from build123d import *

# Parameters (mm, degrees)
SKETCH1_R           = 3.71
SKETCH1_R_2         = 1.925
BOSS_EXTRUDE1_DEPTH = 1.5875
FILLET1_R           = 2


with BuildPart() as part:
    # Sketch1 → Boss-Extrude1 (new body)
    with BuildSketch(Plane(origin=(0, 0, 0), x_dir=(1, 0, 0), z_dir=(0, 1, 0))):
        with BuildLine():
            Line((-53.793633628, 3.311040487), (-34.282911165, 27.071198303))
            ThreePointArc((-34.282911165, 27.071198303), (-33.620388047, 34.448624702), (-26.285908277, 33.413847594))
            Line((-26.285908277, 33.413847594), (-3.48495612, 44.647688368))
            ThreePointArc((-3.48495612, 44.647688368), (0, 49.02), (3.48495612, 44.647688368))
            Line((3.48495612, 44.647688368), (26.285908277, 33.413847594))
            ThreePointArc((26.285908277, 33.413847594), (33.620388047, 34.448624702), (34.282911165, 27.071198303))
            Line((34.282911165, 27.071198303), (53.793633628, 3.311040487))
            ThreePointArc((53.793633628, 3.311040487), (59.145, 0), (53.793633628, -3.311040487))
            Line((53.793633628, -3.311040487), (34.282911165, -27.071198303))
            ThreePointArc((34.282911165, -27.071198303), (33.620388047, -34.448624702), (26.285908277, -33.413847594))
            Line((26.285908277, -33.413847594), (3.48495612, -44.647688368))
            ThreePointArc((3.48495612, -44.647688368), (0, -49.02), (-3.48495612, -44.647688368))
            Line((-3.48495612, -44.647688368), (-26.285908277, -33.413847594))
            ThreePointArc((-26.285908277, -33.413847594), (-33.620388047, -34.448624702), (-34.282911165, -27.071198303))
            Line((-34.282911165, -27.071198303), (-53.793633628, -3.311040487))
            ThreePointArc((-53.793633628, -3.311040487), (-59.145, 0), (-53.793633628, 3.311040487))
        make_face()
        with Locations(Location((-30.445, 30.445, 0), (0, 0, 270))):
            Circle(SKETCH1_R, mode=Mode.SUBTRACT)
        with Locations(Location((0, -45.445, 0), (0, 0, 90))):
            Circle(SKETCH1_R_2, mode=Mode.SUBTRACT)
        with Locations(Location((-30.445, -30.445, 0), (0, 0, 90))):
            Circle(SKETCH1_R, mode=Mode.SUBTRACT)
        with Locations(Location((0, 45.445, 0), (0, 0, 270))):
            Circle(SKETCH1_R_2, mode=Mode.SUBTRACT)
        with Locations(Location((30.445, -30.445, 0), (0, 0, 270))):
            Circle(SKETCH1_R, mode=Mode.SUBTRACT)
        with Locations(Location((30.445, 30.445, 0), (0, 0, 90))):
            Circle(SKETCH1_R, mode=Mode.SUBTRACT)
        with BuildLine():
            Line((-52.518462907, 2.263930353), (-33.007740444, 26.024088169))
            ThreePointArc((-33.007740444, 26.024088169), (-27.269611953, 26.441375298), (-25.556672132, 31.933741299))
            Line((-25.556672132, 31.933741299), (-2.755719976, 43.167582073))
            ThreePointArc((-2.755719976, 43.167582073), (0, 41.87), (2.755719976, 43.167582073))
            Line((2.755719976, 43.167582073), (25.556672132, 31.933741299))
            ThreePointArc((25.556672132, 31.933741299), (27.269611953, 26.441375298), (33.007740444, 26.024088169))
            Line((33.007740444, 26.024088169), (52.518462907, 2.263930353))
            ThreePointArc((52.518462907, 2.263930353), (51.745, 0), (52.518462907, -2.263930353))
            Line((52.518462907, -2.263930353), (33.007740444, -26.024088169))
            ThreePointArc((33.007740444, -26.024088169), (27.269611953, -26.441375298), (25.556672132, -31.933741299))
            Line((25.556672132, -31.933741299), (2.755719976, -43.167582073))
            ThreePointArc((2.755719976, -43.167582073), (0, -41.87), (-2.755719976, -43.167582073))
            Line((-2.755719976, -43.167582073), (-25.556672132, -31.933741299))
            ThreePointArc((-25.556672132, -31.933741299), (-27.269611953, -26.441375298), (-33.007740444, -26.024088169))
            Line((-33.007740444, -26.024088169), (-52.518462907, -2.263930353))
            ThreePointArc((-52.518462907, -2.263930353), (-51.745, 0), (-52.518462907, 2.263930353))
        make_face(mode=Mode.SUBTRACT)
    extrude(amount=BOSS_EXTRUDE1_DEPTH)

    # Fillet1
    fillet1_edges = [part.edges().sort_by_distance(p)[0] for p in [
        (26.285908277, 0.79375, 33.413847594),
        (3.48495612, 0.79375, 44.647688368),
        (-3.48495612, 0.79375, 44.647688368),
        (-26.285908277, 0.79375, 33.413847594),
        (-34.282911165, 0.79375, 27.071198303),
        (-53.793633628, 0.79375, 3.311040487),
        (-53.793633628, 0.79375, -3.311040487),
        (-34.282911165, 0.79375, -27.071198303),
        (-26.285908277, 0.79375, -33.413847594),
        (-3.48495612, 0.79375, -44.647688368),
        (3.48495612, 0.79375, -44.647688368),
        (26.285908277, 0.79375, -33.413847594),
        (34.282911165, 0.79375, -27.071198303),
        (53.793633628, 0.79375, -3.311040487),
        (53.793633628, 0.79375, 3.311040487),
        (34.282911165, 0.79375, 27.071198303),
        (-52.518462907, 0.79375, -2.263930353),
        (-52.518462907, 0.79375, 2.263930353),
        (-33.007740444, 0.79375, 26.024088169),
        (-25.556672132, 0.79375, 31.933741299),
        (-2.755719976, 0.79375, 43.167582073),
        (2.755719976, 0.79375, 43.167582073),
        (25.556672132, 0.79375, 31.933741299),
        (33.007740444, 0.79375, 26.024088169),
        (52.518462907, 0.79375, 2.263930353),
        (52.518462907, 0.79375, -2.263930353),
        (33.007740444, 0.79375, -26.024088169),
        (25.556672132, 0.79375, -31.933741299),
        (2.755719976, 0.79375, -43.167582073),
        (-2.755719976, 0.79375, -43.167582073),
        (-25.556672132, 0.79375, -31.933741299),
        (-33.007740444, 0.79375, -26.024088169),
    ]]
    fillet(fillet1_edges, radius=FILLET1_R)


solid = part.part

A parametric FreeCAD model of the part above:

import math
import FreeCAD as App
import Part
import Sketcher
from FreeCAD import Vector
Q = App.Units.Quantity


def edges_at(feature, points):
    """Names of the edges that pass closest to the given points."""
    edges = feature.Shape.Edges
    near = lambda p: min(range(len(edges)), key=lambda i: edges[i].distToShape(Part.Vertex(*p))[0])
    return sorted({f"Edge{near(p) + 1}" for p in points})

doc = App.newDocument("Part")
body = doc.addObject("PartDesign::Body", "Body")

# Sketch on XZ plane
sketch1 = body.newObject("Sketcher::SketchObject", "Sketch")
sketch1.AttachmentSupport = (doc.getObject("XZ_Plane"), [""])
sketch1.MapMode = "FlatFace"
sketch1.addGeometry([
    Part.LineSegment(Vector(-34.3, -27.1, 0), Vector(-53.8, -3.3, 0)),  # 0
    Part.ArcOfCircle(Part.Circle(Vector(-55.4, 0, 0), Vector(0, 0, 1), 3.7), math.radians(63), math.radians(297)),  # 1
    Part.LineSegment(Vector(-53.8, 3.3, 0), Vector(-34.3, 27.1, 0)),  # 2
    Part.ArcOfCircle(Part.Circle(Vector(-30.4, 30.4, 0), Vector(0, 0, 1), 5.1), math.radians(36), math.radians(221)),  # 3
    Part.LineSegment(Vector(-26.3, 33.4, 0), Vector(-3.5, 44.6, 0)),  # 4
    Part.ArcOfCircle(Part.Circle(Vector(0, 45.4, 0), Vector(0, 0, 1), 3.6), math.radians(-13), math.radians(193)),  # 5
    Part.LineSegment(Vector(3.5, 44.6, 0), Vector(26.3, 33.4, 0)),  # 6
    Part.ArcOfCircle(Part.Circle(Vector(30.4, 30.4, 0), Vector(0, 0, 1), 5.1), math.radians(-41), math.radians(144)),  # 7
    Part.LineSegment(Vector(34.3, 27.1, 0), Vector(53.8, 3.3, 0)),  # 8
    Part.ArcOfCircle(Part.Circle(Vector(55.4, 0, 0), Vector(0, 0, 1), 3.7), math.radians(-117), math.radians(117)),  # 9
    Part.LineSegment(Vector(53.8, -3.3, 0), Vector(34.3, -27.1, 0)),  # 10
    Part.ArcOfCircle(Part.Circle(Vector(30.4, -30.4, 0), Vector(0, 0, 1), 5.1), math.radians(-144), math.radians(41)),  # 11
    Part.LineSegment(Vector(26.3, -33.4, 0), Vector(3.5, -44.6, 0)),  # 12
    Part.ArcOfCircle(Part.Circle(Vector(0, -45.4, 0), Vector(0, 0, 1), 3.6), math.radians(167), math.radians(373)),  # 13
    Part.LineSegment(Vector(-3.5, -44.6, 0), Vector(-26.3, -33.4, 0)),  # 14
    Part.ArcOfCircle(Part.Circle(Vector(-30.4, -30.4, 0), Vector(0, 0, 1), 5.1), math.radians(139), math.radians(324)),  # 15
    Part.Circle(Vector(30.4, 30.4, 0), Vector(0, 0, 1), 3.7),  # 16
    Part.Circle(Vector(0, 45.4, 0), Vector(0, 0, 1), 1.9),  # 17
    Part.Circle(Vector(-30.4, 30.4, 0), Vector(0, 0, 1), 3.7),  # 18
    Part.LineSegment(Vector(-52.5, -2.3, 0), Vector(-33, -26, 0)),  # 19
    Part.ArcOfCircle(Part.Circle(Vector(-30.4, -30.4, 0), Vector(0, 0, 1), 5.1), math.radians(-17), math.radians(120)),  # 20
    Part.LineSegment(Vector(-25.6, -31.9, 0), Vector(-2.8, -43.2, 0)),  # 21
    Part.ArcOfCircle(Part.Circle(Vector(0, -45.4, 0), Vector(0, 0, 1), 3.6), math.radians(40), math.radians(140)),  # 22
    Part.LineSegment(Vector(2.8, -43.2, 0), Vector(25.6, -31.9, 0)),  # 23
    Part.ArcOfCircle(Part.Circle(Vector(30.4, -30.4, 0), Vector(0, 0, 1), 5.1), math.radians(60), math.radians(197)),  # 24
    Part.LineSegment(Vector(33, -26, 0), Vector(52.5, -2.3, 0)),  # 25
    Part.ArcOfCircle(Part.Circle(Vector(55.4, 0, 0), Vector(0, 0, 1), 3.7), math.radians(142), math.radians(218)),  # 26
    Part.LineSegment(Vector(52.5, 2.3, 0), Vector(33, 26, 0)),  # 27
    Part.ArcOfCircle(Part.Circle(Vector(30.4, 30.4, 0), Vector(0, 0, 1), 5.1), math.radians(163), math.radians(300)),  # 28
    Part.LineSegment(Vector(25.6, 31.9, 0), Vector(2.8, 43.2, 0)),  # 29
    Part.ArcOfCircle(Part.Circle(Vector(0, 45.4, 0), Vector(0, 0, 1), 3.6), math.radians(-140), math.radians(-40)),  # 30
    Part.LineSegment(Vector(-2.8, 43.2, 0), Vector(-25.6, 31.9, 0)),  # 31
    Part.ArcOfCircle(Part.Circle(Vector(-30.4, 30.4, 0), Vector(0, 0, 1), 5.1), math.radians(-120), math.radians(17)),  # 32
    Part.LineSegment(Vector(-33, 26, 0), Vector(-52.5, 2.3, 0)),  # 33
    Part.ArcOfCircle(Part.Circle(Vector(-55.4, 0, 0), Vector(0, 0, 1), 3.7), math.radians(-38), math.radians(38)),  # 34
    Part.Circle(Vector(30.4, -30.4, 0), Vector(0, 0, 1), 3.7),  # 35
    Part.Circle(Vector(0, -45.4, 0), Vector(0, 0, 1), 1.9),  # 36
    Part.Circle(Vector(-30.4, -30.4, 0), Vector(0, 0, 1), 3.7),  # 37
], False)
sketch1.addConstraint([
    Sketcher.Constraint("Coincident", 0, 2, 1, 2),
    Sketcher.Constraint("Coincident", 1, 1, 2, 1),
    Sketcher.Constraint("Coincident", 2, 2, 3, 2),
    Sketcher.Constraint("Coincident", 3, 1, 4, 1),
    Sketcher.Constraint("Coincident", 4, 2, 5, 2),
    Sketcher.Constraint("Coincident", 5, 1, 6, 1),
    Sketcher.Constraint("Coincident", 6, 2, 7, 2),
    Sketcher.Constraint("Coincident", 7, 1, 8, 1),
    Sketcher.Constraint("Coincident", 8, 2, 9, 2),
    Sketcher.Constraint("Coincident", 9, 1, 10, 1),
    Sketcher.Constraint("Coincident", 10, 2, 11, 2),
    Sketcher.Constraint("Coincident", 11, 1, 12, 1),
    Sketcher.Constraint("Coincident", 12, 2, 13, 2),
    Sketcher.Constraint("Coincident", 13, 1, 14, 1),
    Sketcher.Constraint("Coincident", 14, 2, 15, 2),
    Sketcher.Constraint("Coincident", 15, 1, 0, 1),
    Sketcher.Constraint("Coincident", 19, 2, 20, 2),
    Sketcher.Constraint("Coincident", 20, 1, 21, 1),
    Sketcher.Constraint("Coincident", 21, 2, 22, 2),
    Sketcher.Constraint("Coincident", 22, 1, 23, 1),
    Sketcher.Constraint("Coincident", 23, 2, 24, 2),
    Sketcher.Constraint("Coincident", 24, 1, 25, 1),
    Sketcher.Constraint("Coincident", 25, 2, 26, 2),
    Sketcher.Constraint("Coincident", 26, 1, 27, 1),
    Sketcher.Constraint("Coincident", 27, 2, 28, 2),
    Sketcher.Constraint("Coincident", 28, 1, 29, 1),
    Sketcher.Constraint("Coincident", 29, 2, 30, 2),
    Sketcher.Constraint("Coincident", 30, 1, 31, 1),
    Sketcher.Constraint("Coincident", 31, 2, 32, 2),
    Sketcher.Constraint("Coincident", 32, 1, 33, 1),
    Sketcher.Constraint("Coincident", 33, 2, 34, 2),
    Sketcher.Constraint("Coincident", 34, 1, 19, 1),
    Sketcher.Constraint("Coincident", 16, 3, 7, 3),
    Sketcher.Constraint("Coincident", 17, 3, 5, 3),
    Sketcher.Constraint("Coincident", 18, 3, 3, 3),
    Sketcher.Constraint("Coincident", 20, 3, 15, 3),
    Sketcher.Constraint("Coincident", 22, 3, 13, 3),
    Sketcher.Constraint("Coincident", 24, 3, 11, 3),
    Sketcher.Constraint("Coincident", 26, 3, 9, 3),
    Sketcher.Constraint("Coincident", 28, 3, 7, 3),
    Sketcher.Constraint("Coincident", 30, 3, 5, 3),
    Sketcher.Constraint("Coincident", 32, 3, 3, 3),
    Sketcher.Constraint("Coincident", 34, 3, 1, 3),
    Sketcher.Constraint("Coincident", 35, 3, 11, 3),
    Sketcher.Constraint("Coincident", 36, 3, 13, 3),
    Sketcher.Constraint("Coincident", 37, 3, 15, 3),
    Sketcher.Constraint("Equal", 3, 7),
    Sketcher.Constraint("Equal", 1, 9),
    Sketcher.Constraint("Equal", 7, 11),
    Sketcher.Constraint("Equal", 5, 13),
    Sketcher.Constraint("Equal", 11, 15),
    Sketcher.Constraint("Equal", 16, 18),
    Sketcher.Constraint("Equal", 15, 20),
    Sketcher.Constraint("Equal", 13, 22),
    Sketcher.Constraint("Equal", 20, 24),
    Sketcher.Constraint("Equal", 9, 26),
    Sketcher.Constraint("Equal", 24, 28),
    Sketcher.Constraint("Equal", 22, 30),
    Sketcher.Constraint("Equal", 28, 32),
    Sketcher.Constraint("Equal", 26, 34),
    Sketcher.Constraint("Equal", 18, 35),
    Sketcher.Constraint("Equal", 17, 36),
    Sketcher.Constraint("Equal", 35, 37),
    Sketcher.Constraint("Symmetric", 1, 3, 9, 3, -1, 1),
    Sketcher.Constraint("Symmetric", 3, 3, 11, 3, -1, 1),
    Sketcher.Constraint("Symmetric", 5, 3, 13, 3, -1, 1),
    Sketcher.Constraint("Symmetric", 7, 3, 15, 3, -1, 1),
    Sketcher.Constraint("Symmetric", 3, 3, 7, 3, -2),
    Sketcher.Constraint("Symmetric", 4, 2, 5, 1, -2),
    Sketcher.Constraint("Symmetric", 1, 1, 8, 2, -2),
    Sketcher.Constraint("Parallel", 0, 8),
    Sketcher.Constraint("Parallel", 2, 10),
    Sketcher.Constraint("Parallel", 4, 12),
    Sketcher.Constraint("Parallel", 6, 14),
    Sketcher.Constraint("Parallel", 8, 19),
    Sketcher.Constraint("Parallel", 14, 21),
    Sketcher.Constraint("Parallel", 12, 23),
    Sketcher.Constraint("Parallel", 10, 25),
    Sketcher.Constraint("Parallel", 19, 27),
    Sketcher.Constraint("Parallel", 21, 29),
    Sketcher.Constraint("Parallel", 23, 31),
    Sketcher.Constraint("Parallel", 25, 33),
    Sketcher.Constraint("Horizontal", 3, 1, 6, 2),
    Sketcher.Constraint("Horizontal", 2, 2, 7, 1),
    Sketcher.Constraint("Horizontal", 0, 2, 9, 1),
    Sketcher.Constraint("Horizontal", 12, 2, 13, 1),
    Sketcher.Constraint("Horizontal", 21, 2, 22, 1),
    Sketcher.Constraint("Horizontal", 19, 2, 24, 1),
    Sketcher.Constraint("Horizontal", 29, 2, 30, 1),
    Sketcher.Constraint("Horizontal", 27, 2, 32, 1),
    Sketcher.Constraint("Vertical", 0, 2, 1, 1),
    Sketcher.Constraint("Vertical", 6, 2, 11, 1),
    Sketcher.Constraint("Vertical", 25, 2, 26, 1),
    Sketcher.Constraint("Vertical", 23, 2, 28, 1),
    Sketcher.Constraint("Equal", 10, 19),
    Sketcher.Constraint("Equal", 14, 21),
    Sketcher.Constraint("Radius", 1, Q("3.7 mm")),
    Sketcher.Constraint("Diameter", 16, Q("7.42 mm")),
    Sketcher.Constraint("Diameter", 17, Q("3.85 mm")),
    Sketcher.Constraint("Radius", 3, Q("5.11 mm")),
    Sketcher.Constraint("Radius", 5, Q("3.575 mm")),
    Sketcher.Constraint("DistanceX", 1, 3, 3, 3, Q("25 mm")),
    Sketcher.Constraint("DistanceY", 3, 3, 5, 3, Q("15 mm")),
    Sketcher.Constraint("DistanceX", 3, 3, 7, 3, Q("60.89 mm")),
    Sketcher.Constraint("DistanceY", 11, 3, 7, 3, Q("60.89 mm")),
    Sketcher.Constraint("DistanceY", -1, 1, 2, 2, Q("27.071198 mm")),
    Sketcher.Constraint("DistanceY", 0, 2, -1, 1, Q("3.31104 mm")),
    Sketcher.Constraint("DistanceX", 3, 1, -1, 1, Q("26.285908 mm")),
    Sketcher.Constraint("DistanceY", -1, 1, 4, 2, Q("44.647688 mm")),
])
pad1 = body.newObject("PartDesign::Pad", "Pad")
pad1.Profile = sketch1
pad1.Length = 1.5875
pad1.Reversed = True
doc.recompute()

fillet = body.newObject("PartDesign::Fillet", "Fillet")
fillet.Base = (pad1, edges_at(pad1, [
    (26.286, 0.794, 33.414),
    (3.485, 0.794, 44.648),
    (-3.485, 0.794, 44.648),
    (-26.286, 0.794, 33.414),
    (-34.283, 0.794, 27.071),
    (-53.794, 0.794, 3.311),
    (-53.794, 0.794, -3.311),
    (-34.283, 0.794, -27.071),
    (-26.286, 0.794, -33.414),
    (-3.485, 0.794, -44.648),
    (3.485, 0.794, -44.648),
    (26.286, 0.794, -33.414),
    (34.283, 0.794, -27.071),
    (53.794, 0.794, -3.311),
    (53.794, 0.794, 3.311),
    (34.283, 0.794, 27.071),
    (-52.518, 0.794, -2.264),
    (-52.518, 0.794, 2.264),
    (-33.008, 0.794, 26.024),
    (-25.557, 0.794, 31.934),
    (-2.756, 0.794, 43.168),
    (2.756, 0.794, 43.168),
    (25.557, 0.794, 31.934),
    (33.008, 0.794, 26.024),
    (52.518, 0.794, 2.264),
    (52.518, 0.794, -2.264),
    (33.008, 0.794, -26.024),
    (25.557, 0.794, -31.934),
    (2.756, 0.794, -43.168),
    (-2.756, 0.794, -43.168),
    (-25.557, 0.794, -31.934),
    (-33.008, 0.794, -26.024),
]))
fillet.Radius = 2

doc.recompute()
